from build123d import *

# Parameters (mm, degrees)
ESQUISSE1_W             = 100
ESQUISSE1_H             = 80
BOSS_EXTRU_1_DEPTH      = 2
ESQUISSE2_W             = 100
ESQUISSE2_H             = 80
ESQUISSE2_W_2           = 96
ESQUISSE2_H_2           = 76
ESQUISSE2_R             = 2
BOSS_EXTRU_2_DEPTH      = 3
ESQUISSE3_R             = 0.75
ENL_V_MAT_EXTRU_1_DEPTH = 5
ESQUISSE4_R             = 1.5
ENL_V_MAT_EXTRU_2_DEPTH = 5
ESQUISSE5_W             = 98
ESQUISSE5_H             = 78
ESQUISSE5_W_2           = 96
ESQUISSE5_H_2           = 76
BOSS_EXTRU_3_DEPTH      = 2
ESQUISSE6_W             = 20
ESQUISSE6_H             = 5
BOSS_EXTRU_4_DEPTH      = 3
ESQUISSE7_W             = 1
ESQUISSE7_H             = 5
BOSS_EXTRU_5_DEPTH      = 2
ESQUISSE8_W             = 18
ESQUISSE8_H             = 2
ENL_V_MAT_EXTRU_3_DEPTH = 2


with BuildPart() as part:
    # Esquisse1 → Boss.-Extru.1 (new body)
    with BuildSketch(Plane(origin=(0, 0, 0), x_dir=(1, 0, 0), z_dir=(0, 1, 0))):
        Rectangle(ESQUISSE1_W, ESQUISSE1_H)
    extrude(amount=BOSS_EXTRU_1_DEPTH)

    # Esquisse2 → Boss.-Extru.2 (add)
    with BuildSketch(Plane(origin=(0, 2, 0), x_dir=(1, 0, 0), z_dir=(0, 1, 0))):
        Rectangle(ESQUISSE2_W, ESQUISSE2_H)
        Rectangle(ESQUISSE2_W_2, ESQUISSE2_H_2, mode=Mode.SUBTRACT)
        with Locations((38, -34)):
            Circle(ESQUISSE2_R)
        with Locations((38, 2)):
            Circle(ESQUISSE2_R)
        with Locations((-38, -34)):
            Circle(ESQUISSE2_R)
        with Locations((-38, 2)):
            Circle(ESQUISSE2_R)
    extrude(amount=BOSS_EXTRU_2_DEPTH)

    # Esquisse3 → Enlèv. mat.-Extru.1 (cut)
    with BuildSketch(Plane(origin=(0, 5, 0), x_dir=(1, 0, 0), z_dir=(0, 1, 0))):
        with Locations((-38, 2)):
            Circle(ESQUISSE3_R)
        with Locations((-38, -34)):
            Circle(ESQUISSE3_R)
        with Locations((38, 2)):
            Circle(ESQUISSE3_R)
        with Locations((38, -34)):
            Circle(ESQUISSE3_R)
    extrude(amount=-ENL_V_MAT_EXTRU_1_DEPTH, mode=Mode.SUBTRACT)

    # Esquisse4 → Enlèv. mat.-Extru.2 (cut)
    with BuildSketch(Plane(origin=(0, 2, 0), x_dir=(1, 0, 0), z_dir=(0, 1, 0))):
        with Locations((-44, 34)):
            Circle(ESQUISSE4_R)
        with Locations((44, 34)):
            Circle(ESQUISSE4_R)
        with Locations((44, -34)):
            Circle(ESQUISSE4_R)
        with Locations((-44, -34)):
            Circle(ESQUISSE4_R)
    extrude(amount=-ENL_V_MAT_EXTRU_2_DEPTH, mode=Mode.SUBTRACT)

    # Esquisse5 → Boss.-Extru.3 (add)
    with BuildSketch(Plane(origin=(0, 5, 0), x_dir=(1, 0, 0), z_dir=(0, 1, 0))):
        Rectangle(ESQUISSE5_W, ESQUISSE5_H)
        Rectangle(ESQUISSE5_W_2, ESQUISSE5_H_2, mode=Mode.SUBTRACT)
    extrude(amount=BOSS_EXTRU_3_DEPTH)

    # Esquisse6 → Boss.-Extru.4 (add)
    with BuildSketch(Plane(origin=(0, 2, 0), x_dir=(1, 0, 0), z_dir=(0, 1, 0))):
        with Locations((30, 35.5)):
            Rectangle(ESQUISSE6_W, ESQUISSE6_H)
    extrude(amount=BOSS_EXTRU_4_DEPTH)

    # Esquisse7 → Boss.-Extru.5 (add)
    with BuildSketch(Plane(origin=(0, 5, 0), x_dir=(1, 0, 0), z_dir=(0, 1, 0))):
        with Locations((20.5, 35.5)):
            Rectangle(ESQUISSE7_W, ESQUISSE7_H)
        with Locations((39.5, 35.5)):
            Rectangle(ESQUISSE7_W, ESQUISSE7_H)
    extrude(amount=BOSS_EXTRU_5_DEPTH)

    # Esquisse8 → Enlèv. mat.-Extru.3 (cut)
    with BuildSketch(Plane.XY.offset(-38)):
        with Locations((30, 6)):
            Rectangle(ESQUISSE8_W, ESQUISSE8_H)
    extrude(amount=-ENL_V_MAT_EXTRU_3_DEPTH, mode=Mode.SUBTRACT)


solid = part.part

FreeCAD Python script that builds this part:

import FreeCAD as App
import Part
import Sketcher
Q = App.Units.Quantity

doc = App.newDocument("Part")
body = doc.addObject("PartDesign::Body", "Body")

# Sketch on XZ plane
sketch1 = doc.addObject("Sketcher::SketchObject", "Sketch")
body.addObject(sketch1)
sketch1.AttachmentSupport = (doc.XZ_Plane, [""])
sketch1.MapMode = "FlatFace"
sketch1.addGeometry([
    Part.LineSegment(App.Vector(-50, -40, 0), App.Vector(-50, 40, 0)),
    Part.LineSegment(App.Vector(-50, 40, 0), App.Vector(50, 40, 0)),
    Part.LineSegment(App.Vector(50, 40, 0), App.Vector(50, -40, 0)),
    Part.LineSegment(App.Vector(50, -40, 0), App.Vector(-50, -40, 0)),
], False)
sketch1.addConstraint([
    Sketcher.Constraint("Coincident", 0, 2, 1, 1),
    Sketcher.Constraint("Coincident", 1, 2, 2, 1),
    Sketcher.Constraint("Coincident", 2, 2, 3, 1),
    Sketcher.Constraint("Coincident", 3, 2, 0, 1),
    Sketcher.Constraint("Vertical", 0),
    Sketcher.Constraint("Horizontal", 1),
    Sketcher.Constraint("Vertical", 2),
    Sketcher.Constraint("Horizontal", 3),
    Sketcher.Constraint("Symmetric", 0, 2, 2, 2, -1, 1),
    Sketcher.Constraint("DistanceX", 1, 1, 1, 2, Q("100 mm")),
    Sketcher.Constraint("DistanceY", 0, 1, 0, 2, Q("80 mm")),
])
pad1 = doc.addObject("PartDesign::Pad", "Pad")
body.addObject(pad1)
pad1.Profile = sketch1
pad1.Length = 2
pad1.Reversed = True

# Sketch on XZ plane
sketch2 = doc.addObject("Sketcher::SketchObject", "Sketch001")
body.addObject(sketch2)
sketch2.AttachmentSupport = (doc.XZ_Plane, [""])
sketch2.MapMode = "FlatFace"
sketch2.AttachmentOffset = App.Placement(App.Vector(0, 0, -2), App.Rotation())
sketch2.addGeometry([
    Part.LineSegment(App.Vector(-50, -40, 0), App.Vector(-50, 40, 0)),  # 0
    Part.LineSegment(App.Vector(-50, 40, 0), App.Vector(50, 40, 0)),  # 1
    Part.LineSegment(App.Vector(50, 40, 0), App.Vector(50, -40, 0)),  # 2
    Part.LineSegment(App.Vector(50, -40, 0), App.Vector(-50, -40, 0)),  # 3
    Part.LineSegment(App.Vector(48, 38, 0), App.Vector(-48, 38, 0)),  # 4
    Part.LineSegment(App.Vector(-48, 38, 0), App.Vector(-48, -38, 0)),  # 5
    Part.LineSegment(App.Vector(-48, -38, 0), App.Vector(48, -38, 0)),  # 6
    Part.LineSegment(App.Vector(48, -38, 0), App.Vector(48, 38, 0)),  # 7
    Part.Circle(App.Vector(38, 34, 0), App.Vector(0, 0, 1), 2),  # 8
    Part.Circle(App.Vector(38, -2, 0), App.Vector(0, 0, 1), 2),  # 9
    Part.Circle(App.Vector(-38, 34, 0), App.Vector(0, 0, 1), 2),  # 10
    Part.Circle(App.Vector(-38, -2, 0), App.Vector(0, 0, 1), 2),  # 11
], False)
sketch2.addConstraint([
    Sketcher.Constraint("Coincident", 0, 2, 1, 1),
    Sketcher.Constraint("Coincident", 1, 2, 2, 1),
    Sketcher.Constraint("Coincident", 2, 2, 3, 1),
    Sketcher.Constraint("Coincident", 3, 2, 0, 1),
    Sketcher.Constraint("Coincident", 4, 2, 5, 1),
    Sketcher.Constraint("Coincident", 5, 2, 6, 1),
    Sketcher.Constraint("Coincident", 6, 2, 7, 1),
    Sketcher.Constraint("Coincident", 7, 2, 4, 1),
    Sketcher.Constraint("Vertical", 0),
    Sketcher.Constraint("Horizontal", 1),
    Sketcher.Constraint("Vertical", 2),
    Sketcher.Constraint("Horizontal", 3),
    Sketcher.Constraint("Horizontal", 4),
    Sketcher.Constraint("Vertical", 5),
    Sketcher.Constraint("Horizontal", 6),
    Sketcher.Constraint("Vertical", 7),
    Sketcher.Constraint("Equal", 8, 9),
    Sketcher.Constraint("Equal", 9, 10),
    Sketcher.Constraint("Equal", 10, 11),
    Sketcher.Constraint("Symmetric", 0, 2, 2, 2, -1, 1),
    Sketcher.Constraint("Symmetric", 4, 2, 6, 2, -1, 1),
    Sketcher.Constraint("Symmetric", 8, 3, 10, 3, -2),
    Sketcher.Constraint("Symmetric", 9, 3, 11, 3, -2),
    Sketcher.Constraint("Vertical", 8, 3, 9, 3),
    Sketcher.Constraint("Diameter", 8, Q("4 mm")),
    Sketcher.Constraint("DistanceX", 1, 1, 1, 2, Q("100 mm")),
    Sketcher.Constraint("DistanceX", 4, 2, 4, 1, Q("96 mm")),
    Sketcher.Constraint("DistanceY", 0, 1, 0, 2, Q("80 mm")),
    Sketcher.Constraint("DistanceY", 5, 2, 5, 1, Q("76 mm")),
    Sketcher.Constraint("DistanceX", -1, 1, 8, 3, Q("38 mm")),
    Sketcher.Constraint("DistanceY", -1, 1, 8, 3, Q("34 mm")),
    Sketcher.Constraint("DistanceY", 9, 3, -1, 1, Q("2 mm")),
])
pad2 = doc.addObject("PartDesign::Pad", "Pad001")
body.addObject(pad2)
pad2.Profile = sketch2
pad2.Length = 3
pad2.Reversed = True

# Sketch on XZ plane
sketch3 = doc.addObject("Sketcher::SketchObject", "Sketch002")
body.addObject(sketch3)
sketch3.AttachmentSupport = (doc.XZ_Plane, [""])
sketch3.MapMode = "FlatFace"
sketch3.AttachmentOffset = App.Placement(App.Vector(0, 0, -5), App.Rotation())
sketch3.addGeometry([
    Part.Circle(App.Vector(-38, -2, 0), App.Vector(0, 0, 1), 0.8),
    Part.Circle(App.Vector(-38, 34, 0), App.Vector(0, 0, 1), 0.8),
    Part.Circle(App.Vector(38, -2, 0), App.Vector(0, 0, 1), 0.8),
    Part.Circle(App.Vector(38, 34, 0), App.Vector(0, 0, 1), 0.8),
], False)
sketch3.addConstraint([
    Sketcher.Constraint("Equal", 0, 1),
    Sketcher.Constraint("Equal", 1, 2),
    Sketcher.Constraint("Equal", 2, 3),
    Sketcher.Constraint("Symmetric", 0, 3, 2, 3, -2),
    Sketcher.Constraint("Symmetric", 1, 3, 3, 3, -2),
    Sketcher.Constraint("Vertical", 0, 3, 1, 3),
    Sketcher.Constraint("Diameter", 0, Q("1.5 mm")),
    Sketcher.Constraint("DistanceX", 0, 3, -1, 1, Q("38 mm")),
    Sketcher.Constraint("DistanceY", 0, 3, -1, 1, Q("2 mm")),
    Sketcher.Constraint("DistanceY", -1, 1, 1, 3, Q("34 mm")),
])
pocket1 = doc.addObject("PartDesign::Pocket", "Pocket")
body.addObject(pocket1)
pocket1.Profile = sketch3
pocket1.Length = 5
pocket1.Reversed = True

# Sketch on XZ plane
sketch4 = doc.addObject("Sketcher::SketchObject", "Sketch003")
body.addObject(sketch4)
sketch4.AttachmentSupport = (doc.XZ_Plane, [""])
sketch4.MapMode = "FlatFace"
sketch4.AttachmentOffset = App.Placement(App.Vector(0, 0, -2), App.Rotation())
sketch4.addGeometry([
    Part.Circle(App.Vector(-44, -34, 0), App.Vector(0, 0, 1), 1.5),
    Part.Circle(App.Vector(44, -34, 0), App.Vector(0, 0, 1), 1.5),
    Part.Circle(App.Vector(44, 34, 0), App.Vector(0, 0, 1), 1.5),
    Part.Circle(App.Vector(-44, 34, 0), App.Vector(0, 0, 1), 1.5),
], False)
sketch4.addConstraint([
    Sketcher.Constraint("Equal", 0, 1),
    Sketcher.Constraint("Equal", 1, 2),
    Sketcher.Constraint("Equal", 2, 3),
    Sketcher.Constraint("Symmetric", 0, 3, 2, 3, -1, 1),
    Sketcher.Constraint("Symmetric", 1, 3, 3, 3, -1, 1),
    Sketcher.Constraint("Symmetric", 0, 3, 1, 3, -2),
    Sketcher.Constraint("Diameter", 0, Q("3 mm")),
    Sketcher.Constraint("DistanceX", 0, 3, -1, 1, Q("44 mm")),
    Sketcher.Constraint("DistanceY", 0, 3, -1, 1, Q("34 mm")),
])
pocket2 = doc.addObject("PartDesign::Pocket", "Pocket001")
body.addObject(pocket2)
pocket2.Profile = sketch4
pocket2.Length = 5
pocket2.Reversed = True

# Sketch on XZ plane
sketch5 = doc.addObject("Sketcher::SketchObject", "Sketch004")
body.addObject(sketch5)
sketch5.AttachmentSupport = (doc.XZ_Plane, [""])
sketch5.MapMode = "FlatFace"
sketch5.AttachmentOffset = App.Placement(App.Vector(0, 0, -5), App.Rotation())
sketch5.addGeometry([
    Part.LineSegment(App.Vector(-49, -39, 0), App.Vector(-49, 39, 0)),  # 0
    Part.LineSegment(App.Vector(-49, 39, 0), App.Vector(49, 39, 0)),  # 1
    Part.LineSegment(App.Vector(49, 39, 0), App.Vector(49, -39, 0)),  # 2
    Part.LineSegment(App.Vector(49, -39, 0), App.Vector(-49, -39, 0)),  # 3
    Part.LineSegment(App.Vector(48, 38, 0), App.Vector(-48, 38, 0)),  # 4
    Part.LineSegment(App.Vector(-48, 38, 0), App.Vector(-48, -38, 0)),  # 5
    Part.LineSegment(App.Vector(-48, -38, 0), App.Vector(48, -38, 0)),  # 6
    Part.LineSegment(App.Vector(48, -38, 0), App.Vector(48, 38, 0)),  # 7
], False)
sketch5.addConstraint([
    Sketcher.Constraint("Coincident", 0, 2, 1, 1),
    Sketcher.Constraint("Coincident", 1, 2, 2, 1),
    Sketcher.Constraint("Coincident", 2, 2, 3, 1),
    Sketcher.Constraint("Coincident", 3, 2, 0, 1),
    Sketcher.Constraint("Coincident", 4, 2, 5, 1),
    Sketcher.Constraint("Coincident", 5, 2, 6, 1),
    Sketcher.Constraint("Coincident", 6, 2, 7, 1),
    Sketcher.Constraint("Coincident", 7, 2, 4, 1),
    Sketcher.Constraint("Vertical", 0),
    Sketcher.Constraint("Horizontal", 1),
    Sketcher.Constraint("Vertical", 2),
    Sketcher.Constraint("Horizontal", 3),
    Sketcher.Constraint("Horizontal", 4),
    Sketcher.Constraint("Vertical", 5),
    Sketcher.Constraint("Horizontal", 6),
    Sketcher.Constraint("Vertical", 7),
    Sketcher.Constraint("Symmetric", 0, 2, 2, 2, -1, 1),
    Sketcher.Constraint("Symmetric", 4, 2, 6, 2, -1, 1),
    Sketcher.Constraint("DistanceX", 1, 1, 1, 2, Q("98 mm")),
    Sketcher.Constraint("DistanceX", 4, 2, 4, 1, Q("96 mm")),
    Sketcher.Constraint("DistanceY", 0, 1, 0, 2, Q("78 mm")),
    Sketcher.Constraint("DistanceY", 5, 2, 5, 1, Q("76 mm")),
])
pad3 = doc.addObject("PartDesign::Pad", "Pad002")
body.addObject(pad3)
pad3.Profile = sketch5
pad3.Length = 2
pad3.Reversed = True

# Sketch on XZ plane
sketch6 = doc.addObject("Sketcher::SketchObject", "Sketch005")
body.addObject(sketch6)
sketch6.AttachmentSupport = (doc.XZ_Plane, [""])
sketch6.MapMode = "FlatFace"
sketch6.AttachmentOffset = App.Placement(App.Vector(0, 0, -2), App.Rotation())
sketch6.addGeometry([
    Part.LineSegment(App.Vector(20, -38, 0), App.Vector(20, -33, 0)),
    Part.LineSegment(App.Vector(20, -33, 0), App.Vector(40, -33, 0)),
    Part.LineSegment(App.Vector(40, -33, 0), App.Vector(40, -38, 0)),
    Part.LineSegment(App.Vector(40, -38, 0), App.Vector(20, -38, 0)),
], False)
sketch6.addConstraint([
    Sketcher.Constraint("Coincident", 0, 2, 1, 1),
    Sketcher.Constraint("Coincident", 1, 2, 2, 1),
    Sketcher.Constraint("Coincident", 2, 2, 3, 1),
    Sketcher.Constraint("Coincident", 3, 2, 0, 1),
    Sketcher.Constraint("Vertical", 0),
    Sketcher.Constraint("Horizontal", 1),
    Sketcher.Constraint("Vertical", 2),
    Sketcher.Constraint("Horizontal", 3),
    Sketcher.Constraint("DistanceX", 1, 1, 1, 2, Q("20 mm")),
    Sketcher.Constraint("DistanceY", 0, 1, 0, 2, Q("5 mm")),
    Sketcher.Constraint("DistanceX", -1, 1, 0, 2, Q("20 mm")),
    Sketcher.Constraint("DistanceY", 0, 2, -1, 1, Q("33 mm")),
])
pad4 = doc.addObject("PartDesign::Pad", "Pad003")
body.addObject(pad4)
pad4.Profile = sketch6
pad4.Length = 3
pad4.Reversed = True

# Sketch on XZ plane
sketch7 = doc.addObject("Sketcher::SketchObject", "Sketch006")
body.addObject(sketch7)
sketch7.AttachmentSupport = (doc.XZ_Plane, [""])
sketch7.MapMode = "FlatFace"
sketch7.AttachmentOffset = App.Placement(App.Vector(0, 0, -5), App.Rotation())
sketch7.addGeometry([
    Part.LineSegment(App.Vector(20, -38, 0), App.Vector(20, -33, 0)),  # 0
    Part.LineSegment(App.Vector(20, -33, 0), App.Vector(21, -33, 0)),  # 1
    Part.LineSegment(App.Vector(21, -33, 0), App.Vector(21, -38, 0)),  # 2
    Part.LineSegment(App.Vector(21, -38, 0), App.Vector(20, -38, 0)),  # 3
    Part.LineSegment(App.Vector(39, -38, 0), App.Vector(39, -33, 0)),  # 4
    Part.LineSegment(App.Vector(39, -33, 0), App.Vector(40, -33, 0)),  # 5
    Part.LineSegment(App.Vector(40, -33, 0), App.Vector(40, -38, 0)),  # 6
    Part.LineSegment(App.Vector(40, -38, 0), App.Vector(39, -38, 0)),  # 7
], False)
sketch7.addConstraint([
    Sketcher.Constraint("Coincident", 0, 2, 1, 1),
    Sketcher.Constraint("Coincident", 1, 2, 2, 1),
    Sketcher.Constraint("Coincident", 2, 2, 3, 1),
    Sketcher.Constraint("Coincident", 3, 2, 0, 1),
    Sketcher.Constraint("Coincident", 4, 2, 5, 1),
    Sketcher.Constraint("Coincident", 5, 2, 6, 1),
    Sketcher.Constraint("Coincident", 6, 2, 7, 1),
    Sketcher.Constraint("Coincident", 7, 2, 4, 1),
    Sketcher.Constraint("Vertical", 0),
    Sketcher.Constraint("Horizontal", 1),
    Sketcher.Constraint("Vertical", 2),
    Sketcher.Constraint("Horizontal", 3),
    Sketcher.Constraint("Vertical", 4),
    Sketcher.Constraint("Horizontal", 5),
    Sketcher.Constraint("Vertical", 6),
    Sketcher.Constraint("Horizontal", 7),
    Sketcher.Constraint("Horizontal", 1, 2, 4, 2),
    Sketcher.Constraint("Horizontal", 3, 2, 6, 2),
    Sketcher.Constraint("Equal", 3, 5),
    Sketcher.Constraint("DistanceX", 1, 1, 1, 2, Q("1 mm")),
    Sketcher.Constraint("DistanceY", 0, 1, 0, 2, Q("5 mm")),
    Sketcher.Constraint("DistanceX", -1, 1, 0, 2, Q("20 mm")),
    Sketcher.Constraint("DistanceY", 0, 2, -1, 1, Q("33 mm")),
    Sketcher.Constraint("DistanceX", -1, 1, 4, 2, Q("39 mm")),
])
pad5 = doc.addObject("PartDesign::Pad", "Pad004")
body.addObject(pad5)
pad5.Profile = sketch7
pad5.Length = 2
pad5.Reversed = True

# Sketch on XY plane
sketch8 = doc.addObject("Sketcher::SketchObject", "Sketch007")
body.addObject(sketch8)
sketch8.AttachmentSupport = (doc.XY_Plane, [""])
sketch8.MapMode = "FlatFace"
sketch8.AttachmentOffset = App.Placement(App.Vector(0, 0, -38), App.Rotation())
sketch8.addGeometry([
    Part.LineSegment(App.Vector(21, 7, 0), App.Vector(21, 5, 0)),
    Part.LineSegment(App.Vector(21, 5, 0), App.Vector(39, 5, 0)),
    Part.LineSegment(App.Vector(39, 5, 0), App.Vector(39, 7, 0)),
    Part.LineSegment(App.Vector(39, 7, 0), App.Vector(21, 7, 0)),
], False)
sketch8.addConstraint([
    Sketcher.Constraint("Coincident", 0, 2, 1, 1),
    Sketcher.Constraint("Coincident", 1, 2, 2, 1),
    Sketcher.Constraint("Coincident", 2, 2, 3, 1),
    Sketcher.Constraint("Coincident", 3, 2, 0, 1),
    Sketcher.Constraint("Vertical", 0),
    Sketcher.Constraint("Horizontal", 1),
    Sketcher.Constraint("Vertical", 2),
    Sketcher.Constraint("Horizontal", 3),
    Sketcher.Constraint("DistanceX", 1, 1, 1, 2, Q("18 mm")),
    Sketcher.Constraint("DistanceY", 0, 2, 0, 1, Q("2 mm")),
    Sketcher.Constraint("DistanceX", -1, 1, 0, 2, Q("21 mm")),
    Sketcher.Constraint("DistanceY", -1, 1, 0, 2, Q("5 mm")),
])
pocket3 = doc.addObject("PartDesign::Pocket", "Pocket002")
body.addObject(pocket3)
pocket3.Profile = sketch8
pocket3.Length = 2

doc.recompute()
